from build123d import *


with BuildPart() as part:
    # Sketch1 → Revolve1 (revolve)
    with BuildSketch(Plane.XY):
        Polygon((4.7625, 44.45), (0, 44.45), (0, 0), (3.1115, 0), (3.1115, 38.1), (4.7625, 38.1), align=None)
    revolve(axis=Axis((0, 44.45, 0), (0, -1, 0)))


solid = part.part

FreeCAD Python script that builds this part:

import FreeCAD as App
import Part
import Sketcher

V = App.Vector
Q = App.Units.Quantity


def add_polygon(sketch, points):
    """Adds a closed chain of lines whose ends are joined by coincident constraints."""
    first, n = sketch.GeometryCount, len(points)
    for a, b in zip(points, points[1:] + points[:1]):
        sketch.addGeometry(Part.LineSegment(App.Vector(*a, 0), App.Vector(*b, 0)), False)
    for i in range(n):
        sketch.addConstraint(Sketcher.Constraint("Coincident", first + i, 2, first + (i + 1) % n, 1))

doc = App.newDocument("Part")
body = doc.addObject("PartDesign::Body", "Body")

# Sketch on XY plane
sketch1 = body.newObject("Sketcher::SketchObject", "Sketch")
sketch1.AttachmentSupport = (doc.getObject("XY_Plane"), [""])
sketch1.MapMode = "FlatFace"
add_polygon(sketch1, [(4.7625, 44.45), (0, 44.45), (0, 0), (3.1115, 0), (3.1115, 38.1), (4.7625, 38.1)])  # lines 0-5
sketch1.addConstraint([
    Sketcher.Constraint("Horizontal", 0),
    Sketcher.Constraint("Vertical", 1),
    Sketcher.Constraint("Horizontal", 2),
    Sketcher.Constraint("Vertical", 3),
    Sketcher.Constraint("Horizontal", 4),
    Sketcher.Constraint("Vertical", 5),
    Sketcher.Constraint("Coincident", 1, 2, -1, 1),
    Sketcher.Constraint("DistanceY", 3, 1, 3, 2, Q("1.5 in")),
    Sketcher.Constraint("DistanceY", 1, 2, 1, 1, Q("1.75 in")),
    Sketcher.Constraint("DistanceX", 0, 2, 0, 1, Q("0.1875 in")),
    Sketcher.Constraint("DistanceX", 4, 1, 4, 2, Q("0.065 in")),
])
revolution = body.newObject("PartDesign::Revolution", "Revolution")
revolution.Profile = sketch1
revolution.ReferenceAxis = (sketch1, ["V_Axis"])
revolution.Angle = 360

doc.recompute()
